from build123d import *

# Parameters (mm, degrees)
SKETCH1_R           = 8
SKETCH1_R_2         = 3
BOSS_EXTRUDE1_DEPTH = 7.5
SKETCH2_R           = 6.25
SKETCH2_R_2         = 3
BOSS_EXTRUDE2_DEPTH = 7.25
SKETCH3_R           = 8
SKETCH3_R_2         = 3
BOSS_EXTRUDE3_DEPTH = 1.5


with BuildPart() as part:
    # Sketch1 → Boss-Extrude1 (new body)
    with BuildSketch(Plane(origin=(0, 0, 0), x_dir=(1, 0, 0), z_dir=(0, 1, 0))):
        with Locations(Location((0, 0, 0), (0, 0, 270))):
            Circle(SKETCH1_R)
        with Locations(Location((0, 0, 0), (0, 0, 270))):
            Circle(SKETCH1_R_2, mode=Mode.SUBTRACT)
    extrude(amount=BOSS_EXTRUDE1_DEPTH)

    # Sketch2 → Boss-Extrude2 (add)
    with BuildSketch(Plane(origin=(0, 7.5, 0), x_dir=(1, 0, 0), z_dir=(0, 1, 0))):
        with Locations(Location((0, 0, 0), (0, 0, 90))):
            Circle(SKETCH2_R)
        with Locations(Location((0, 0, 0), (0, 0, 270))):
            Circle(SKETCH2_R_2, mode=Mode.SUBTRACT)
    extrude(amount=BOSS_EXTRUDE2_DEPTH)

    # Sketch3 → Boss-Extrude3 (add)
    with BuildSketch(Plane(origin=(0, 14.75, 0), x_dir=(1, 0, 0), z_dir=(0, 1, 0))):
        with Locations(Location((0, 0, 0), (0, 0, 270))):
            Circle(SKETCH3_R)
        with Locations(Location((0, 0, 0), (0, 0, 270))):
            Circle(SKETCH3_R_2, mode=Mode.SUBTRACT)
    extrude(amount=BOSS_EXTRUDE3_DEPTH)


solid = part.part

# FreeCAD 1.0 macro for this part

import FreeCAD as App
import Part
import Sketcher

V = App.Vector

doc = App.newDocument("Part")
body = doc.addObject("PartDesign::Body", "Body")

# Sketch on XZ plane
sketch1 = body.newObject("Sketcher::SketchObject", "Sketch")
sketch1.AttachmentSupport = (doc.getObject("XZ_Plane"), [""])
sketch1.MapMode = "FlatFace"
sketch1.addGeometry([
    Part.Circle(V(0, 0, 0), V(0, 0, 1), 8),
    Part.Circle(V(0, 0, 0), V(0, 0, 1), 3),
], False)
sketch1.addConstraint([
    Sketcher.Constraint("Coincident", 0, 3, -1, 1),
    Sketcher.Constraint("Coincident", 1, 3, -1, 1),
    Sketcher.Constraint("Diameter", 0, 16.0),
    Sketcher.Constraint("Diameter", 1, 6.0),
])
pad1 = body.newObject("PartDesign::Pad", "Pad")
pad1.Profile = sketch1
pad1.Length = 7.5
pad1.Reversed = True

# Sketch on XZ plane
sketch2 = body.newObject("Sketcher::SketchObject", "Sketch001")
sketch2.AttachmentSupport = (doc.getObject("XZ_Plane"), [""])
sketch2.MapMode = "FlatFace"
sketch2.AttachmentOffset = App.Placement(V(0, 0, -7.5), App.Rotation())
sketch2.addGeometry([
    Part.Circle(V(0, 0, 0), V(0, 0, 1), 6.2),
    Part.Circle(V(0, 0, 0), V(0, 0, 1), 3),
], False)
sketch2.addConstraint([
    Sketcher.Constraint("Coincident", 0, 3, -1, 1),
    Sketcher.Constraint("Coincident", 1, 3, -1, 1),
    Sketcher.Constraint("Diameter", 1, 6.0),
    Sketcher.Constraint("Diameter", 0, 12.5),
])
pad2 = body.newObject("PartDesign::Pad", "Pad001")
pad2.Profile = sketch2
pad2.Length = 7.25
pad2.Reversed = True

# Sketch on XZ plane
sketch3 = body.newObject("Sketcher::SketchObject", "Sketch002")
sketch3.AttachmentSupport = (doc.getObject("XZ_Plane"), [""])
sketch3.MapMode = "FlatFace"
sketch3.AttachmentOffset = App.Placement(V(0, 0, -14.75), App.Rotation())
sketch3.addGeometry([
    Part.Circle(V(0, 0, 0), V(0, 0, 1), 8),
    Part.Circle(V(0, 0, 0), V(0, 0, 1), 3),
], False)
sketch3.addConstraint([
    Sketcher.Constraint("Coincident", 0, 3, -1, 1),
    Sketcher.Constraint("Coincident", 1, 3, -1, 1),
    Sketcher.Constraint("Diameter", 0, 16.0),
    Sketcher.Constraint("Diameter", 1, 6.0),
])
pad3 = body.newObject("PartDesign::Pad", "Pad002")
pad3.Profile = sketch3
pad3.Length = 1.5
pad3.Reversed = True

doc.recompute()
